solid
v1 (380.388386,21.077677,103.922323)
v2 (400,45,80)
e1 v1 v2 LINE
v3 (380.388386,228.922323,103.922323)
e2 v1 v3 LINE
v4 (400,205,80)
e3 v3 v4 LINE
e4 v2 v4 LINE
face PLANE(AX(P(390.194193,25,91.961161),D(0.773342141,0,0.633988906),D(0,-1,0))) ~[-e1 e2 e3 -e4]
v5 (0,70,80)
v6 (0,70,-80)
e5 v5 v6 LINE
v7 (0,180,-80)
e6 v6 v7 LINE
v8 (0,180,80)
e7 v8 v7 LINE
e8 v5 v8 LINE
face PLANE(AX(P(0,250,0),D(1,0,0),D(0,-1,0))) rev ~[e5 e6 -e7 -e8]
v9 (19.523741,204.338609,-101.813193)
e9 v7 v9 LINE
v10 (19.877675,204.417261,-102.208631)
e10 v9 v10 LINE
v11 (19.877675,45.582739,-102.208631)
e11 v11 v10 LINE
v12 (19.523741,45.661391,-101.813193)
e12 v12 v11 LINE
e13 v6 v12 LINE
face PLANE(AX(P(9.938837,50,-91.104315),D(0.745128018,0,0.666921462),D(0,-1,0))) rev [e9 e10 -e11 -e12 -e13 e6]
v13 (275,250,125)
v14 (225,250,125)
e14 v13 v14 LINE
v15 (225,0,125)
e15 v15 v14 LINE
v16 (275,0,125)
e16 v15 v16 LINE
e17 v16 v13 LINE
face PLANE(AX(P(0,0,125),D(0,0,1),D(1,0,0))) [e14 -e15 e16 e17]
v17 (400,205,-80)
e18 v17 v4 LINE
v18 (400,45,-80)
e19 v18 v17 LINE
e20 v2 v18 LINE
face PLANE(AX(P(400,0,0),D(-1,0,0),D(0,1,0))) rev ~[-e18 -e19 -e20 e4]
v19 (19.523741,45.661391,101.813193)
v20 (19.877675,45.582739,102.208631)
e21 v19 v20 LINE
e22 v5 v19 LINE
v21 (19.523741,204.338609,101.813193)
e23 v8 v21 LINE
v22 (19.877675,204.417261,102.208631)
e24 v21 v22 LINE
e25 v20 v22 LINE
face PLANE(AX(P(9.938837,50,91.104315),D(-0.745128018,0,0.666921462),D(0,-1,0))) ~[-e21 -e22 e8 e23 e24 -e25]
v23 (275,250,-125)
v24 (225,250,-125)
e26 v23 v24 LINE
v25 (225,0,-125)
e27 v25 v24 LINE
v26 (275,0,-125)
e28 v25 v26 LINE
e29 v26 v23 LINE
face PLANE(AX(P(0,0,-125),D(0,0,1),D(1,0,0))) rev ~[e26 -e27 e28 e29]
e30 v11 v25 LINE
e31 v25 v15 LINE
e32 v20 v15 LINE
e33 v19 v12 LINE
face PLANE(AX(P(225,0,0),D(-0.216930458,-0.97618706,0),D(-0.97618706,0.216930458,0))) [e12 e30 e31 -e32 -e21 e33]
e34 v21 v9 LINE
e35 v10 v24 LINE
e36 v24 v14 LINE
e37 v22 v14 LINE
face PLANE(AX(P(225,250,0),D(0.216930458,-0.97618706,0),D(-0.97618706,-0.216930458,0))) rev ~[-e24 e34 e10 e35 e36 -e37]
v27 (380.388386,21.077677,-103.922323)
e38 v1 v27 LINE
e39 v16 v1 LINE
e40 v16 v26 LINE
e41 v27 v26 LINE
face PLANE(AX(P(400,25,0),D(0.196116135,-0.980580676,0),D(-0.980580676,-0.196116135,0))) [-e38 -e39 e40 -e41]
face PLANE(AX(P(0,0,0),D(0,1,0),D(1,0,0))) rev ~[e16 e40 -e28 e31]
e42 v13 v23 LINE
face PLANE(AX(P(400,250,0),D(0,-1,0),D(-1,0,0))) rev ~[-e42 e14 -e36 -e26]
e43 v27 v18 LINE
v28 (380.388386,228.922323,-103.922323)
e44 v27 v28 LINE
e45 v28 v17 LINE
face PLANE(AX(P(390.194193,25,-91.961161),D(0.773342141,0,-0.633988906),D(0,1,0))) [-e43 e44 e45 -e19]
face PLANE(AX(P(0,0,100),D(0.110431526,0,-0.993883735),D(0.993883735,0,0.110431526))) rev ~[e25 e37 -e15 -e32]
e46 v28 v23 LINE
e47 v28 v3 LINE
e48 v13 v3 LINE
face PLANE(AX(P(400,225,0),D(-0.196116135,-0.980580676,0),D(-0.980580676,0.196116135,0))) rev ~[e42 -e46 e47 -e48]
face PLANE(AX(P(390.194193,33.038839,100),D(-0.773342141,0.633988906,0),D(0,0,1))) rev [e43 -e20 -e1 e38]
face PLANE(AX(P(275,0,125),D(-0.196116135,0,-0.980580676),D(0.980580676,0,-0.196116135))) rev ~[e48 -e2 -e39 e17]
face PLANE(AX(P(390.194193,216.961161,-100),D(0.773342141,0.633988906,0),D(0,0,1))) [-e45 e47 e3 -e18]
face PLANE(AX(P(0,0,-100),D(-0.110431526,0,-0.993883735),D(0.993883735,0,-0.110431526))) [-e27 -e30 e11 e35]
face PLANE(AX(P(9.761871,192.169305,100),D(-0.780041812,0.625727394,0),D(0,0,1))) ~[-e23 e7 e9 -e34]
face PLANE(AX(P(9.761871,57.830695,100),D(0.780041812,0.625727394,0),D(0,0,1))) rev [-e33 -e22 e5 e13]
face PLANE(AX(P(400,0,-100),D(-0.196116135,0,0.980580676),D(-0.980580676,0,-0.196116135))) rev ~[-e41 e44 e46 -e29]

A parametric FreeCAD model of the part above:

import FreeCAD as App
import Part
import Sketcher

V = App.Vector
Q = App.Units.Quantity


def edges_at(feature, points):
    """Names of the edges that pass closest to the given points."""
    edges = feature.Shape.Edges
    near = lambda p: min(range(len(edges)), key=lambda i: edges[i].distToShape(Part.Vertex(*p))[0])
    return sorted({f"Edge{near(p) + 1}" for p in points})

doc = App.newDocument("Part")
params = doc.addObject("Spreadsheet::Sheet", "Params")
for row, (alias, value) in enumerate([
    ("sketch1_width", "400 mm"),
    ("sketch1_height", "250 mm"),
    ("pad1_length", "250 mm"),
    ("sketch2_width", "125 mm"),
    ("sketch2_height", "25 mm"),
    ("sketch2_height2", "50 mm"),
    ("sketch2_width2", "225 mm"),
    ("sketch3_width", "125 mm"),
    ("sketch3_height", "25 mm"),
    ("sketch4_height", "25 mm"),
    ("sketch4_width", "225 mm"),
    ("chamfer_size", "20 mm"),
    ("chamfer2_size", "20 mm"),
], start=1):
    params.set(f"A{row}", alias)
    params.set(f"B{row}", "=" + value)
    params.setAlias(f"B{row}", alias)

body = doc.addObject("PartDesign::Body", "Body")

# Sketch on XY plane
sketch1 = body.newObject("Sketcher::SketchObject", "Sketch")
sketch1.AttachmentSupport = (doc.getObject("XY_Plane"), [""])
sketch1.MapMode = "FlatFace"
sketch1.addGeometry([
    Part.LineSegment(V(0, 250, 0), V(0, 0, 0)),
    Part.LineSegment(V(0, 0, 0), V(400, 0, 0)),
    Part.LineSegment(V(400, 0, 0), V(400, 250, 0)),
    Part.LineSegment(V(400, 250, 0), V(0, 250, 0)),
], False)
sketch1.addConstraint([
    Sketcher.Constraint("Coincident", 0, 2, 1, 1),
    Sketcher.Constraint("Coincident", 1, 2, 2, 1),
    Sketcher.Constraint("Coincident", 2, 2, 3, 1),
    Sketcher.Constraint("Coincident", 3, 2, 0, 1),
    Sketcher.Constraint("Vertical", 0),
    Sketcher.Constraint("Horizontal", 1),
    Sketcher.Constraint("Vertical", 2),
    Sketcher.Constraint("Horizontal", 3),
    Sketcher.Constraint("Coincident", 0, 2, -1, 1),
    Sketcher.Constraint("DistanceX", 1, 1, 1, 2, Q("400 mm")),
    Sketcher.Constraint("DistanceY", 0, 2, 0, 1, Q("250 mm")),
])
sketch1.setExpression("Constraints[9]", "Params.sketch1_width")
sketch1.setExpression("Constraints[10]", "Params.sketch1_height")
pad1 = body.newObject("PartDesign::Pad", "Pad")
pad1.Profile = sketch1
pad1.setExpression("Length", "Params.pad1_length")
pad1.Midplane = True

# Sketch on XY plane
sketch2 = body.newObject("Sketcher::SketchObject", "Sketch001")
sketch2.AttachmentSupport = (doc.getObject("XY_Plane"), [""])
sketch2.MapMode = "FlatFace"
sketch2.addGeometry([
    Part.LineSegment(V(275, 0, 0), V(400, 0, 0)),  # 0
    Part.LineSegment(V(400, 0, 0), V(400, 25, 0)),  # 1
    Part.LineSegment(V(400, 25, 0), V(275, 0, 0)),  # 2
    Part.LineSegment(V(275, 250, 0), V(400, 225, 0)),  # 3
    Part.LineSegment(V(400, 225, 0), V(400, 250, 0)),  # 4
    Part.LineSegment(V(400, 250, 0), V(275, 250, 0)),  # 5
    Part.LineSegment(V(0, 0, 0), V(225, 0, 0)),  # 6
    Part.LineSegment(V(225, 0, 0), V(0, 50, 0)),  # 7
    Part.LineSegment(V(0, 50, 0), V(0, 0, 0)),  # 8
    Part.LineSegment(V(0, 200, 0), V(225, 250, 0)),  # 9
    Part.LineSegment(V(225, 250, 0), V(0, 250, 0)),  # 10
    Part.LineSegment(V(0, 250, 0), V(0, 200, 0)),  # 11
], False)
sketch2.addConstraint([
    Sketcher.Constraint("Coincident", 0, 2, 1, 1),
    Sketcher.Constraint("Coincident", 1, 2, 2, 1),
    Sketcher.Constraint("Coincident", 2, 2, 0, 1),
    Sketcher.Constraint("Coincident", 3, 2, 4, 1),
    Sketcher.Constraint("Coincident", 4, 2, 5, 1),
    Sketcher.Constraint("Coincident", 5, 2, 3, 1),
    Sketcher.Constraint("Coincident", 6, 2, 7, 1),
    Sketcher.Constraint("Coincident", 7, 2, 8, 1),
    Sketcher.Constraint("Coincident", 8, 2, 6, 1),
    Sketcher.Constraint("Coincident", 9, 2, 10, 1),
    Sketcher.Constraint("Coincident", 10, 2, 11, 1),
    Sketcher.Constraint("Coincident", 11, 2, 9, 1),
    Sketcher.Constraint("Horizontal", 0),
    Sketcher.Constraint("Vertical", 1),
    Sketcher.Constraint("Vertical", 4),
    Sketcher.Constraint("Horizontal", 5),
    Sketcher.Constraint("Horizontal", 6),
    Sketcher.Constraint("Vertical", 8),
    Sketcher.Constraint("Horizontal", 10),
    Sketcher.Constraint("Vertical", 11),
    Sketcher.Constraint("Coincident", 8, 2, -1, 1),
    Sketcher.Constraint("PointOnObject", 0, 2, -1),
    Sketcher.Constraint("PointOnObject", 10, 2, -2),
    Sketcher.Constraint("Horizontal", 5, 2, 9, 2),
    Sketcher.Constraint("Vertical", 1, 2, 3, 2),
    Sketcher.Constraint("Vertical", 2, 2, 5, 2),
    Sketcher.Constraint("Vertical", 6, 2, 9, 2),
    Sketcher.Constraint("Equal", 1, 4),
    Sketcher.Constraint("Equal", 8, 11),
    Sketcher.Constraint("DistanceX", 0, 1, 0, 2, Q("125 mm")),
    Sketcher.Constraint("DistanceY", 1, 1, 1, 2, Q("25 mm")),
    Sketcher.Constraint("DistanceY", 8, 2, 8, 1, Q("50 mm")),
    Sketcher.Constraint("DistanceX", 6, 2, 2, 2, Q("50 mm")),
    Sketcher.Constraint("DistanceX", 6, 1, 6, 2, Q("225 mm")),
    Sketcher.Constraint("DistanceY", -1, 1, 3, 2, Q("225 mm")),
])
sketch2.setExpression("Constraints[29]", "Params.sketch2_width")
sketch2.setExpression("Constraints[30]", "Params.sketch2_height")
sketch2.setExpression("Constraints[31]", "Params.sketch2_height2")
sketch2.setExpression("Constraints[33]", "Params.sketch2_width2")
pocket1 = body.newObject("PartDesign::Pocket", "Pocket")
pocket1.Profile = sketch2
pocket1.Type = "ThroughAll"
pocket1.Midplane = True

# Sketch on XZ plane
sketch3 = body.newObject("Sketcher::SketchObject", "Sketch002")
sketch3.AttachmentSupport = (doc.getObject("XZ_Plane"), [""])
sketch3.MapMode = "FlatFace"
sketch3.addGeometry([
    Part.LineSegment(V(400, -125, 0), V(275, -125, 0)),  # 0
    Part.LineSegment(V(275, -125, 0), V(400, -100, 0)),  # 1
    Part.LineSegment(V(400, -100, 0), V(400, -125, 0)),  # 2
    Part.LineSegment(V(400, 100, 0), V(275, 125, 0)),  # 3
    Part.LineSegment(V(275, 125, 0), V(400, 125, 0)),  # 4
    Part.LineSegment(V(400, 125, 0), V(400, 100, 0)),  # 5
], False)
sketch3.addConstraint([
    Sketcher.Constraint("Coincident", 0, 2, 1, 1),
    Sketcher.Constraint("Coincident", 1, 2, 2, 1),
    Sketcher.Constraint("Coincident", 2, 2, 0, 1),
    Sketcher.Constraint("Coincident", 3, 2, 4, 1),
    Sketcher.Constraint("Coincident", 4, 2, 5, 1),
    Sketcher.Constraint("Coincident", 5, 2, 3, 1),
    Sketcher.Constraint("Horizontal", 0),
    Sketcher.Constraint("Vertical", 2),
    Sketcher.Constraint("Horizontal", 4),
    Sketcher.Constraint("Vertical", 5),
    Sketcher.Constraint("Symmetric", 0, 2, 3, 2, -1),
    Sketcher.Constraint("Symmetric", 1, 2, 5, 2, -1),
    Sketcher.Constraint("DistanceX", 0, 2, 0, 1, Q("125 mm")),
    Sketcher.Constraint("DistanceY", 2, 2, 2, 1, Q("25 mm")),
    Sketcher.Constraint("DistanceY", 0, 2, -1, 1, Q("125 mm")),
    Sketcher.Constraint("DistanceX", -1, 1, 1, 2, Q("400 mm")),
])
sketch3.setExpression("Constraints[12]", "Params.sketch3_width")
sketch3.setExpression("Constraints[13]", "Params.sketch3_height")
pocket2 = body.newObject("PartDesign::Pocket", "Pocket001")
pocket2.Profile = sketch3
pocket2.Type = "ThroughAll"

# Sketch on XZ plane
sketch4 = body.newObject("Sketcher::SketchObject", "Sketch003")
sketch4.AttachmentSupport = (doc.getObject("XZ_Plane"), [""])
sketch4.MapMode = "FlatFace"
sketch4.addGeometry([
    Part.LineSegment(V(225, -125, 0), V(0, -125, 0)),  # 0
    Part.LineSegment(V(0, -125, 0), V(0, -100, 0)),  # 1
    Part.LineSegment(V(0, -100, 0), V(225, -125, 0)),  # 2
    Part.LineSegment(V(0, 125, 0), V(225, 125, 0)),  # 3
    Part.LineSegment(V(225, 125, 0), V(0, 100, 0)),  # 4
    Part.LineSegment(V(0, 100, 0), V(0, 125, 0)),  # 5
], False)
sketch4.addConstraint([
    Sketcher.Constraint("Coincident", 0, 2, 1, 1),
    Sketcher.Constraint("Coincident", 1, 2, 2, 1),
    Sketcher.Constraint("Coincident", 2, 2, 0, 1),
    Sketcher.Constraint("Coincident", 3, 2, 4, 1),
    Sketcher.Constraint("Coincident", 4, 2, 5, 1),
    Sketcher.Constraint("Coincident", 5, 2, 3, 1),
    Sketcher.Constraint("Horizontal", 0),
    Sketcher.Constraint("Vertical", 1),
    Sketcher.Constraint("Horizontal", 3),
    Sketcher.Constraint("Vertical", 5),
    Sketcher.Constraint("Symmetric", 1, 2, 4, 2, -1, 1),
    Sketcher.Constraint("Symmetric", 2, 2, 3, 2, -1),
    Sketcher.Constraint("PointOnObject", 0, 2, -2),
    Sketcher.Constraint("DistanceY", 1, 1, 1, 2, Q("25 mm")),
    Sketcher.Constraint("DistanceX", 0, 2, 0, 1, Q("225 mm")),
    Sketcher.Constraint("DistanceY", 0, 2, -1, 1, Q("125 mm")),
])
sketch4.setExpression("Constraints[13]", "Params.sketch4_height")
sketch4.setExpression("Constraints[14]", "Params.sketch4_width")
pocket3 = body.newObject("PartDesign::Pocket", "Pocket002")
pocket3.Profile = sketch4
pocket3.Type = "ThroughAll"
doc.recompute()

chamfer = body.newObject("PartDesign::Chamfer", "Chamfer")
chamfer.Base = (pocket3, edges_at(pocket3, [
    (0, 125, -100),
    (0, 125, 100),
    (0, 200, 0),
    (0, 50, 0),
]))
chamfer.setExpression("Size", "Params.chamfer_size")
doc.recompute()

chamfer2 = body.newObject("PartDesign::Chamfer", "Chamfer001")
chamfer2.Base = (chamfer, edges_at(chamfer, [
    (400, 225, 0),
    (400, 125, -100),
    (400, 125, 100),
    (400, 25, 0),
]))
chamfer2.setExpression("Size", "Params.chamfer2_size")

doc.recompute()
